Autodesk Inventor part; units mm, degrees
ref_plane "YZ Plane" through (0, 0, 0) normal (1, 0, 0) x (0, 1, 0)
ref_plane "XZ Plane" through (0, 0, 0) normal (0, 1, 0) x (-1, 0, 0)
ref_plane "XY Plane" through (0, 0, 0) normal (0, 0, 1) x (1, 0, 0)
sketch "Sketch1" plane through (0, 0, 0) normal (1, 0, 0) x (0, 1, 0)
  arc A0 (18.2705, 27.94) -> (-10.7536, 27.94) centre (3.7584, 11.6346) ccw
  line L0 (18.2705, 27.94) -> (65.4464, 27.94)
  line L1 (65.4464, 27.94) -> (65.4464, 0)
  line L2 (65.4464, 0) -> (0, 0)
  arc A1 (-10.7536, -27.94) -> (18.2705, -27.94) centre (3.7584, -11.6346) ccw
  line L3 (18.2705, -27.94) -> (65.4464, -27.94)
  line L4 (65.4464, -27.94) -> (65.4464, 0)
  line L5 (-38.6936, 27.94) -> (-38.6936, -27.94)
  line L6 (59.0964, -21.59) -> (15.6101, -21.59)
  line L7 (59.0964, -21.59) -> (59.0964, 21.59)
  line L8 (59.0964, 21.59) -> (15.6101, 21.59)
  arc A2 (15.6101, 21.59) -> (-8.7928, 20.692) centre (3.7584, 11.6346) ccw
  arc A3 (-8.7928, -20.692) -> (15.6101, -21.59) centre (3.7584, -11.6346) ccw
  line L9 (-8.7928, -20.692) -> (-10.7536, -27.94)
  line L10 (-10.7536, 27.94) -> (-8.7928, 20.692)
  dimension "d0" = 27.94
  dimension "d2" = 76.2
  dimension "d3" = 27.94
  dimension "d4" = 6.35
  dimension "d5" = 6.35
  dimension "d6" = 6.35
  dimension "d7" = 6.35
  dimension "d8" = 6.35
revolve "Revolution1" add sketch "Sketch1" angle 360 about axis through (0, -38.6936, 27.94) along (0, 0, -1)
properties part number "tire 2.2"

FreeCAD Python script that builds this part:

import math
import FreeCAD as App
import Part
import Sketcher
from FreeCAD import Vector
Q = App.Units.Quantity

doc = App.newDocument("Part")
body = doc.addObject("PartDesign::Body", "Body")

sketch1 = body.newObject("Sketcher::SketchObject", "Sketch")
sketch1.AttachmentSupport = (doc.getObject("YZ_Plane"), [""])
sketch1.MapMode = "FlatFace"
sketch1.addGeometry(Part.LineSegment(Vector(65.4464, 27.94, 0), Vector(18.2705, 27.94, 0)), False)
sketch1.addGeometry(Part.ArcOfCircle(Part.Circle(Vector(3.7584, 11.6346, 0), Vector(0, 0, 1), 21.828127), math.radians(48.330341), math.radians(131.669463)), False)
sketch1.addGeometry(Part.LineSegment(Vector(-10.7536, 27.94, 0), Vector(-8.7928, 20.692, 0)), False)
sketch1.addGeometry(Part.ArcOfCircle(Part.Circle(Vector(3.7584, 11.6346, 0), Vector(0, 0, 1), 15.478139), math.radians(40.03018), math.radians(144.184421)), False)
sketch1.addGeometry(Part.LineSegment(Vector(15.6101, 21.59, 0), Vector(59.0964, 21.59, 0)), False)
sketch1.addGeometry(Part.LineSegment(Vector(59.0964, 21.59, 0), Vector(59.0964, -21.59, 0)), False)
sketch1.addGeometry(Part.LineSegment(Vector(59.0964, -21.59, 0), Vector(15.6101, -21.59, 0)), False)
sketch1.addGeometry(Part.ArcOfCircle(Part.Circle(Vector(3.7584, -11.6346, 0), Vector(0, 0, 1), 15.47802), math.radians(-144.184421), math.radians(-40.03018)), False)
sketch1.addGeometry(Part.LineSegment(Vector(-8.7928, -20.692, 0), Vector(-10.7536, -27.94, 0)), False)
sketch1.addGeometry(Part.ArcOfCircle(Part.Circle(Vector(3.7584, -11.6346, 0), Vector(0, 0, 1), 21.82806), math.radians(-131.669463), math.radians(-48.330341)), False)
sketch1.addGeometry(Part.LineSegment(Vector(18.2705, -27.94, 0), Vector(65.4464, -27.94, 0)), False)
sketch1.addGeometry(Part.LineSegment(Vector(65.4464, -27.94, 0), Vector(65.4464, 27.94, 0)), False)
sketch1.addGeometry(Part.LineSegment(Vector(-38.6936, 27.94, 0), Vector(-38.6936, -27.94, 0)), True)
sketch1.addConstraint(Sketcher.Constraint("Coincident", 0, 2, 1, 1))
sketch1.addConstraint(Sketcher.Constraint("Coincident", 1, 2, 2, 1))
sketch1.addConstraint(Sketcher.Constraint("Coincident", 2, 2, 3, 2))
sketch1.addConstraint(Sketcher.Constraint("Coincident", 3, 1, 4, 1))
sketch1.addConstraint(Sketcher.Constraint("Coincident", 4, 2, 5, 1))
sketch1.addConstraint(Sketcher.Constraint("Coincident", 5, 2, 6, 1))
sketch1.addConstraint(Sketcher.Constraint("Coincident", 6, 2, 7, 2))
sketch1.addConstraint(Sketcher.Constraint("Coincident", 7, 1, 8, 1))
sketch1.addConstraint(Sketcher.Constraint("Coincident", 8, 2, 9, 1))
sketch1.addConstraint(Sketcher.Constraint("Coincident", 9, 2, 10, 1))
sketch1.addConstraint(Sketcher.Constraint("Coincident", 10, 2, 11, 1))
sketch1.addConstraint(Sketcher.Constraint("Coincident", 11, 2, 0, 1))
sketch1.addConstraint(Sketcher.Constraint("Horizontal", 0))
sketch1.addConstraint(Sketcher.Constraint("Horizontal", 4))
sketch1.addConstraint(Sketcher.Constraint("Vertical", 5))
sketch1.addConstraint(Sketcher.Constraint("Horizontal", 6))
sketch1.addConstraint(Sketcher.Constraint("Horizontal", 10))
sketch1.addConstraint(Sketcher.Constraint("Vertical", 11))
sketch1.addConstraint(Sketcher.Constraint("Vertical", 12))
sketch1.addConstraint(Sketcher.Constraint("Coincident", 3, 3, 1, 3))
sketch1.addConstraint(Sketcher.Constraint("Coincident", 9, 3, 7, 3))
sketch1.addConstraint(Sketcher.Constraint("Equal", 3, 7))
sketch1.addConstraint(Sketcher.Constraint("Equal", 1, 9))
sketch1.addConstraint(Sketcher.Constraint("Symmetric", 1, 3, 7, 3, -1))
sketch1.addConstraint(Sketcher.Constraint("Horizontal", 0, 2, 1, 2))
sketch1.addConstraint(Sketcher.Constraint("Horizontal", 8, 2, 9, 2))
sketch1.addConstraint(Sketcher.Constraint("Horizontal", 11, 2, 12, 1))
sketch1.addConstraint(Sketcher.Constraint("Horizontal", 10, 2, 12, 2))
sketch1.addConstraint(Sketcher.Constraint("Vertical", 3, 1, 6, 2))
sketch1.addConstraint(Sketcher.Constraint("Vertical", 2, 2, 7, 1))
sketch1.addConstraint(Sketcher.Constraint("Vertical", 1, 2, 8, 2))
sketch1.addConstraint(Sketcher.Constraint("DistanceY", -1, 1, 0, 2, Q("1.1 in")))
sketch1.addConstraint(Sketcher.Constraint("DistanceX", 12, 1, 1, 2, Q("1.1 in")))
sketch1.addConstraint(Sketcher.Constraint("DistanceY", 3, 1, 0, 2, Q("0.25 in")))
sketch1.addConstraint(Sketcher.Constraint("DistanceX", 5, 2, 10, 2, Q("0.25 in")))
sketch1.addConstraint(Sketcher.Constraint("Radius", 1, Q("0.859374 in")))
sketch1.addConstraint(Sketcher.Constraint("Radius", 3, Q("0.609374 in")))
sketch1.addConstraint(Sketcher.Constraint("Distance", 2, Q("0.2956 in")))
sketch1.addConstraint(Sketcher.Constraint("DistanceX", 0, 2, 0, 1, 47.176))
sketch1.addConstraint(Sketcher.Constraint("DistanceX", 4, 1, 4, 2, 43.4863))
sketch1.addConstraint(Sketcher.Constraint("DistanceX", -1, 1, 0, 2, Q("0.7193 in")))
revolution = body.newObject("PartDesign::Revolution", "Revolution")
revolution.Profile = sketch1
revolution.ReferenceAxis = (sketch1, ["Axis0"])
revolution.Angle = 360

doc.recompute()
